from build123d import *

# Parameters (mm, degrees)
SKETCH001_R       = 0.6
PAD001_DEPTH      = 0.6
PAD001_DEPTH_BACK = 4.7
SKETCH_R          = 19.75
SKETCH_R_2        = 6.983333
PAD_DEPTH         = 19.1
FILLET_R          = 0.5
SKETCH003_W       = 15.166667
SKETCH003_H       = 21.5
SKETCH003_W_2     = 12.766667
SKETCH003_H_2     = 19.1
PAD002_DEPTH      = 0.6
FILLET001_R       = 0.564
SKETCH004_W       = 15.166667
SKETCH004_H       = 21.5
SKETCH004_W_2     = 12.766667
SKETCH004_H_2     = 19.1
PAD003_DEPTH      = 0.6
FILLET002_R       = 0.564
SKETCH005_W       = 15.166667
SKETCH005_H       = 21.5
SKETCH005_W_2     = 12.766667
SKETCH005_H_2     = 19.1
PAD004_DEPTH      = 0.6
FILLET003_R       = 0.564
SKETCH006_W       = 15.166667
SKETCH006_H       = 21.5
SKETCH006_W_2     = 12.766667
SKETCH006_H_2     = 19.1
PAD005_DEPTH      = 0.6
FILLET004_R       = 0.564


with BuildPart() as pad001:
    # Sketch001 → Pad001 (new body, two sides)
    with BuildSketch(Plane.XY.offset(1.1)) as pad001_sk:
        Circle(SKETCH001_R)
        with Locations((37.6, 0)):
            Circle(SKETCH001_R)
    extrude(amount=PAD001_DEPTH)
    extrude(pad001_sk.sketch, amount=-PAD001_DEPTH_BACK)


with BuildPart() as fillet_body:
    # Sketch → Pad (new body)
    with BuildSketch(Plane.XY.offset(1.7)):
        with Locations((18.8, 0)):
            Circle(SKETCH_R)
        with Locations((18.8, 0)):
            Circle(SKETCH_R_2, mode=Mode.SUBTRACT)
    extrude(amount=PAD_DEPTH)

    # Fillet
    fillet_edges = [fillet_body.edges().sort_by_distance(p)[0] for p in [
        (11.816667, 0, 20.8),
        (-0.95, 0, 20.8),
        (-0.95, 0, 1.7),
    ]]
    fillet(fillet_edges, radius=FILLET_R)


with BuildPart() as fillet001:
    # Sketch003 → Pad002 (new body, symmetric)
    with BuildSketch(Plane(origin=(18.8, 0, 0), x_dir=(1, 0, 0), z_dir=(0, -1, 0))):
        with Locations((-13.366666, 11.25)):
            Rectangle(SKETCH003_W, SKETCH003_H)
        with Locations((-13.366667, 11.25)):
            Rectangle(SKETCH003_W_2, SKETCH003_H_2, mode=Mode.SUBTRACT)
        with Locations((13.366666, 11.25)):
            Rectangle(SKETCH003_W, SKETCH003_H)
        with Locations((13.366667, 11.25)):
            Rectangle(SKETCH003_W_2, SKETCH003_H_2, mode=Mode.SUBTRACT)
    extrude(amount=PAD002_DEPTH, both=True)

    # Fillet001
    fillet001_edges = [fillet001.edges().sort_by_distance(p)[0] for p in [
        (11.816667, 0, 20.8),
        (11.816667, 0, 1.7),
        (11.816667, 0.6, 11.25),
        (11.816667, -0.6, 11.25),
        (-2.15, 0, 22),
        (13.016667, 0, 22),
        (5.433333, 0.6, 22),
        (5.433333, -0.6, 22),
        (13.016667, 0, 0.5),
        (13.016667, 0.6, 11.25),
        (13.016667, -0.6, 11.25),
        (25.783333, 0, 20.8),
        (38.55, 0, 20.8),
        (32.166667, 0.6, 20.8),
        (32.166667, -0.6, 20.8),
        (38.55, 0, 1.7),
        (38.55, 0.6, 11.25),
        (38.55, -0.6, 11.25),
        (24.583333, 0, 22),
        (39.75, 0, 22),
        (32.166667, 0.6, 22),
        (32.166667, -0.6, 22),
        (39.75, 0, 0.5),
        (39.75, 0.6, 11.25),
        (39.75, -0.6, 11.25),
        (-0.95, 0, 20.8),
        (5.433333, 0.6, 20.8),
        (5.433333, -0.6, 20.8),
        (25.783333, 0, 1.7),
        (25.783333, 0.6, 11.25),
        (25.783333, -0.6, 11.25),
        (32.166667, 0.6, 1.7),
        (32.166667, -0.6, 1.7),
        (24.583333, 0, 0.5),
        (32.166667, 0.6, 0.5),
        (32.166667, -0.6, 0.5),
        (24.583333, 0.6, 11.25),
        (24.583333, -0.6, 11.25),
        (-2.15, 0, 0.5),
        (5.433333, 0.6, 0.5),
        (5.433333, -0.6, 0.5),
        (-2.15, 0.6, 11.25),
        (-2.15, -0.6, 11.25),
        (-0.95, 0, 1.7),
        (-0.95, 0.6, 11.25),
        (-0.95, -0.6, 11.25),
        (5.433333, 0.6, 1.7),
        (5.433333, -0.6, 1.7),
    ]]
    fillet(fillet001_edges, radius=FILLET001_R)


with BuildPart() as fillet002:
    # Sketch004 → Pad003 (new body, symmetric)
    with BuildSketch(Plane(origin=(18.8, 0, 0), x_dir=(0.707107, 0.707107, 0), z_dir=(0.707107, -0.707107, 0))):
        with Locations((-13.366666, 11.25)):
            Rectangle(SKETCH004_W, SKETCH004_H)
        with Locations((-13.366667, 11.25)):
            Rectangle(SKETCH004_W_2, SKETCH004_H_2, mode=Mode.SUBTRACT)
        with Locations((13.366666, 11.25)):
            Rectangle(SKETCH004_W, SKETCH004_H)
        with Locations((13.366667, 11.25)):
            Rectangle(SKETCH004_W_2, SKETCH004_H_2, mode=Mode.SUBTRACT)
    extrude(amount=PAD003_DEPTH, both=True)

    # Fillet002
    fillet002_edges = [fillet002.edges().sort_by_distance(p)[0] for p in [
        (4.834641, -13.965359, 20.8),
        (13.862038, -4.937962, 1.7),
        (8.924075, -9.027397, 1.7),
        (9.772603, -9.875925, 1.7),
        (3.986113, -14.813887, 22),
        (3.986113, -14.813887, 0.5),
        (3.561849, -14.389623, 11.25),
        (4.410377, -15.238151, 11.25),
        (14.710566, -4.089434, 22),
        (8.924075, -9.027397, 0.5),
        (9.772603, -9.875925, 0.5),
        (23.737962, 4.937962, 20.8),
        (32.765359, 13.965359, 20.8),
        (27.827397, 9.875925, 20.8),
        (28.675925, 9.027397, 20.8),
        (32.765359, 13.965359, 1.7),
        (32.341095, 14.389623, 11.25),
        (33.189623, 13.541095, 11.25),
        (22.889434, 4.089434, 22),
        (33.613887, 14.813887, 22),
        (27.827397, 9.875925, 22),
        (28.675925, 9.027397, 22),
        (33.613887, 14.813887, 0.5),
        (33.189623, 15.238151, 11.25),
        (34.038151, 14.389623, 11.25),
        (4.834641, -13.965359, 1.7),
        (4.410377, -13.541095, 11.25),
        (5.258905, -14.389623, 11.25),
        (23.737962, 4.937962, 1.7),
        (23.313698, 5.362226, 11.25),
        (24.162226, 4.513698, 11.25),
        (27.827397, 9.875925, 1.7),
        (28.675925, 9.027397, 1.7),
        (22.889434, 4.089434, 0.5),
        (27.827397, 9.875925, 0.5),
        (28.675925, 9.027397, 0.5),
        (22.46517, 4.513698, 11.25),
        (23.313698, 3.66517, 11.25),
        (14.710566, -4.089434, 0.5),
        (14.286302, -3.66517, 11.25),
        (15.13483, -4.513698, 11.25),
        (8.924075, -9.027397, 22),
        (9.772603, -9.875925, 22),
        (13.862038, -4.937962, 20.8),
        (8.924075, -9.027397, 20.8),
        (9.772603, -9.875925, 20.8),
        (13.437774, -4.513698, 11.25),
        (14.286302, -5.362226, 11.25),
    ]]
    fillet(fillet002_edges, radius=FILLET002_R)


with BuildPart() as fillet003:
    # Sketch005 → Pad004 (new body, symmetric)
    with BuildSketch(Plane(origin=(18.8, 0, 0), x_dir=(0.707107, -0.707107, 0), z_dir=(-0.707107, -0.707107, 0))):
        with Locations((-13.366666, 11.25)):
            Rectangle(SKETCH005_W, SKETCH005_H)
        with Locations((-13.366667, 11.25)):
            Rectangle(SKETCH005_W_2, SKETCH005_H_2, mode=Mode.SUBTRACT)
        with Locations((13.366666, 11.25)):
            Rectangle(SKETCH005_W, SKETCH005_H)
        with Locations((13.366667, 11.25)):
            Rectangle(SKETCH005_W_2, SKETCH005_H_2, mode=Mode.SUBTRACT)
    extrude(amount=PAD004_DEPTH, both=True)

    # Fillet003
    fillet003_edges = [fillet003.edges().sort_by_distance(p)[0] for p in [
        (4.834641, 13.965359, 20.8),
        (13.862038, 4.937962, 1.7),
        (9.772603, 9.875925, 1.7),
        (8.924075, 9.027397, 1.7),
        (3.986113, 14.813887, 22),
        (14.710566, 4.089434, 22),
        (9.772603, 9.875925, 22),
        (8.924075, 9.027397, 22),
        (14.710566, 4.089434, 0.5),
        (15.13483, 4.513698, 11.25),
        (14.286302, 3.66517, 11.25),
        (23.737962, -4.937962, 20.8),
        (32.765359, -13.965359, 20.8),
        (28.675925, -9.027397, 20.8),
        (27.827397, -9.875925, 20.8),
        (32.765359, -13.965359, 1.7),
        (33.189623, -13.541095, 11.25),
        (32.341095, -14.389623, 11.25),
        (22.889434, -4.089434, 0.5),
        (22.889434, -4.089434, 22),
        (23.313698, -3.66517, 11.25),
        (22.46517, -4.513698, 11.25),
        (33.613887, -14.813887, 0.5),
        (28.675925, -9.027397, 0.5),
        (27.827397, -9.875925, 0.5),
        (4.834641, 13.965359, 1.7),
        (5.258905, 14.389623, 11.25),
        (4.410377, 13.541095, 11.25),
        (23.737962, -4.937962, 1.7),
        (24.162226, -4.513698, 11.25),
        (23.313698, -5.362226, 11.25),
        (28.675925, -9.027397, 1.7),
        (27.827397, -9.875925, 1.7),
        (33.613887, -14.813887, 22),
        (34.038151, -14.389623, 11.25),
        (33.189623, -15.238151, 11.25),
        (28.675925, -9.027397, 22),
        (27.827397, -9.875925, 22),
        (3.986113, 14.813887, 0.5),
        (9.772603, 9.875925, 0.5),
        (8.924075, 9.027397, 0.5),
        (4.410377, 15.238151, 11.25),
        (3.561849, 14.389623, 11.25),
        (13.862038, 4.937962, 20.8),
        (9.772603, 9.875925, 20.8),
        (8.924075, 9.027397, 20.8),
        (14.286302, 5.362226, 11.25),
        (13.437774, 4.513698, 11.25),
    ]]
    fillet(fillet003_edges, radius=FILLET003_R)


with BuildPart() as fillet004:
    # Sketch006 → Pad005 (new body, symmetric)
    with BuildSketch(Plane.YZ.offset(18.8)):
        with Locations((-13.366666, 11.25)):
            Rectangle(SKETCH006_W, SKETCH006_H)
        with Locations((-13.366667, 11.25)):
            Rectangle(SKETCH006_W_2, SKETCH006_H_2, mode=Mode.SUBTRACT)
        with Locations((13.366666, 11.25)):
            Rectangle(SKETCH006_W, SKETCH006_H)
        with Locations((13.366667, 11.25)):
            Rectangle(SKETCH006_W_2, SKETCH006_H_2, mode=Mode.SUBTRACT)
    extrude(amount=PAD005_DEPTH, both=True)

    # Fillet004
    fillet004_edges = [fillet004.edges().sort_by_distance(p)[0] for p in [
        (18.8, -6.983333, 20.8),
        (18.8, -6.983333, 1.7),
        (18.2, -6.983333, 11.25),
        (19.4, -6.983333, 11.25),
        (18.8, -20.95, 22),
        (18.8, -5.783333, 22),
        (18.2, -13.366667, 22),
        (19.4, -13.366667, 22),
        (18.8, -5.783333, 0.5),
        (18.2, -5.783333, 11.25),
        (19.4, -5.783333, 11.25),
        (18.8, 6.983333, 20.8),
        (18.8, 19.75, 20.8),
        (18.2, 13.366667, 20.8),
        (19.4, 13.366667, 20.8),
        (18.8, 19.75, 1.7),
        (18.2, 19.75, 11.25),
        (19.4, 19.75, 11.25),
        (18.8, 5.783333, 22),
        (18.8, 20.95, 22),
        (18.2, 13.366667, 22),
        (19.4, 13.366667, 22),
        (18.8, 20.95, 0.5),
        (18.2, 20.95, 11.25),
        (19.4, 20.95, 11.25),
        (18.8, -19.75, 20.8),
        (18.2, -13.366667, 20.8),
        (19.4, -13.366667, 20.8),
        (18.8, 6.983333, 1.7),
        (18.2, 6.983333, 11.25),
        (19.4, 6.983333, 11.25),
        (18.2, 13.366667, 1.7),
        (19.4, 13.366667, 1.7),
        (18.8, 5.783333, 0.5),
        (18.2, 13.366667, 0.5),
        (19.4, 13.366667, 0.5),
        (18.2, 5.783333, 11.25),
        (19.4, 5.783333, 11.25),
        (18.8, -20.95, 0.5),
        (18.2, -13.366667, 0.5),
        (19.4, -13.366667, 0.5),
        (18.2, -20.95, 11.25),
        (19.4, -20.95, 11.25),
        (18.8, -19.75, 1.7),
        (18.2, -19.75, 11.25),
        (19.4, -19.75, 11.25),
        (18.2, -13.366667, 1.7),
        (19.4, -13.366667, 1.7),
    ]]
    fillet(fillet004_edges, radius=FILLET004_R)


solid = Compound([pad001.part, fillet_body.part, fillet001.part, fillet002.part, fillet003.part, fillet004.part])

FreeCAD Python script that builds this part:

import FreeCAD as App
import Part
import Sketcher

V = App.Vector


def edges_at(feature, points):
    """Names of the edges that pass closest to the given points."""
    edges = feature.Shape.Edges
    near = lambda p: min(range(len(edges)), key=lambda i: edges[i].distToShape(Part.Vertex(*p))[0])
    return sorted({f"Edge{near(p) + 1}" for p in points})


def add_polygon(sketch, points):
    """Adds a closed chain of lines whose ends are joined by coincident constraints."""
    first, n = sketch.GeometryCount, len(points)
    for a, b in zip(points, points[1:] + points[:1]):
        sketch.addGeometry(Part.LineSegment(App.Vector(*a, 0), App.Vector(*b, 0)), False)
    for i in range(n):
        sketch.addConstraint(Sketcher.Constraint("Coincident", first + i, 2, first + (i + 1) % n, 1))

doc = App.newDocument("Part")
body = doc.addObject("PartDesign::Body", "Body")
body.AllowCompound = True

sketch1 = body.newObject("Sketcher::SketchObject", "Sketch")
sketch1.AttachmentSupport = (doc.getObject("XY_Plane"), [""])
sketch1.MapMode = "FlatFace"
sketch1.AttachmentOffset = App.Placement(V(0, 0, 1.1), App.Rotation())
sketch1.addGeometry([
    Part.Circle(V(0, 0, 0), V(0, 0, 1), 0.6),
    Part.Circle(V(37.6, 0, 0), V(0, 0, 1), 0.6),
], False)
sketch1.addConstraint([
    Sketcher.Constraint("Coincident", 0, 3, -1, 1),
    Sketcher.Constraint("Equal", 0, 1),
    Sketcher.Constraint("PointOnObject", 1, 3, -1),
    Sketcher.Constraint("Diameter", 0, 1.2),
    Sketcher.Constraint("DistanceX", -1, 1, 1, 3, 37.6),
])
pad1 = body.newObject("PartDesign::Pad", "Pad")
pad1.Profile = sketch1
pad1.Type = "TwoLengths"
pad1.Length = 0.6
pad1.Length2 = 4.7
body2 = doc.addObject("PartDesign::Body", "Body001")

sketch2 = body2.newObject("Sketcher::SketchObject", "Sketch001")
sketch2.AttachmentSupport = (doc.getObject("XY_Plane001"), [""])
sketch2.MapMode = "FlatFace"
sketch2.AttachmentOffset = App.Placement(V(0, 0, 1.7), App.Rotation())
sketch2.addGeometry([
    Part.Circle(V(19, 0, 0), V(0, 0, 1), 20),
    Part.Circle(V(19, 0, 0), V(0, 0, 1), 7),
], False)
sketch2.addConstraint([
    Sketcher.Constraint("Coincident", 1, 3, 0, 3),
    Sketcher.Constraint("PointOnObject", 0, 3, -1),
    Sketcher.Constraint("Diameter", 0, 39.5),
    Sketcher.Constraint("DistanceX", -1, 1, 0, 3, 18.8),
    Sketcher.Constraint("Diameter", 1, 13.966666),
])
pad2 = body2.newObject("PartDesign::Pad", "Pad001")
pad2.Profile = sketch2
pad2.Length = 19.1
doc.recompute()

fillet = body2.newObject("PartDesign::Fillet", "Fillet")
fillet.Base = (pad2, edges_at(pad2, [(11.817, 0, 20.8), (-0.95, 0, 20.8), (-0.95, 0, 1.7)]))
fillet.Radius = 0.5
body3 = doc.addObject("PartDesign::Body", "Body002")
body3.AllowCompound = True

sketch3 = body3.newObject("Sketcher::SketchObject", "Sketch002")
sketch3.AttachmentSupport = (doc.getObject("XZ_Plane002"), [""])
sketch3.MapMode = "FlatFace"
add_polygon(sketch3, [(-2, 22), (-2, 0), (13, 0), (13, 22)])
add_polygon(sketch3, [(12, 2), (-1, 2), (-1, 21), (12, 21)])
add_polygon(sketch3, [(25, 22), (25, 0), (40, 0), (40, 22)])
add_polygon(sketch3, [(39, 2), (26, 2), (26, 21), (39, 21)])
sketch3.addConstraint([
    Sketcher.Constraint("Vertical", 0),
    Sketcher.Constraint("Horizontal", 1),
    Sketcher.Constraint("Vertical", 2),
    Sketcher.Constraint("Horizontal", 3),
    Sketcher.Constraint("Horizontal", 4),
    Sketcher.Constraint("Vertical", 5),
    Sketcher.Constraint("Horizontal", 6),
    Sketcher.Constraint("Vertical", 7),
    Sketcher.Constraint("Vertical", 8),
    Sketcher.Constraint("Horizontal", 9),
    Sketcher.Constraint("Vertical", 10),
    Sketcher.Constraint("Horizontal", 11),
    Sketcher.Constraint("Horizontal", 12),
    Sketcher.Constraint("Vertical", 13),
    Sketcher.Constraint("Horizontal", 14),
    Sketcher.Constraint("Vertical", 15),
    Sketcher.Constraint("Horizontal", 1, 2, 8, 2),
    Sketcher.Constraint("Horizontal", 3, 2, 10, 2),
    Sketcher.Constraint("Horizontal", 7, 2, 12, 2),
    Sketcher.Constraint("Horizontal", 6, 2, 13, 2),
    Sketcher.Constraint("Equal", 3, 9),
    Sketcher.Constraint("Equal", 6, 12),
    Sketcher.Constraint("DistanceY", 0, 2, 0, 1, 21.5),
    Sketcher.Constraint("DistanceY", 5, 1, 5, 2, 19.1),
    Sketcher.Constraint("DistanceY", -1, 1, 2, 2, 22.0),
    Sketcher.Constraint("DistanceY", -1, 1, 4, 2, 1.7),
    Sketcher.Constraint("DistanceX", 0, 2, 4, 2, 1.199999),
    Sketcher.Constraint("DistanceX", 6, 2, 2, 2, 1.200001),
    Sketcher.Constraint("DistanceX", 8, 2, 12, 2, 1.200001),
    Sketcher.Constraint("DistanceX", 0, 2, -1, 1, 2.149999),
    Sketcher.Constraint("DistanceX", -1, 1, 9, 2, 39.75),
    Sketcher.Constraint("DistanceX", 1, 1, 1, 2, 15.166667),
])
pad3 = body3.newObject("PartDesign::Pad", "Pad002")
pad3.Profile = sketch3
pad3.Length = 1.2
pad3.Midplane = True
doc.recompute()

fillet2 = body3.newObject("PartDesign::Fillet", "Fillet001")
fillet2.Base = (pad3, ["Edge1"])
fillet2.UseAllEdges = True
fillet2.Radius = 0.564
body4 = doc.addObject("PartDesign::Body", "Body003")
body4.AllowCompound = True

sketch4 = body4.newObject("Sketcher::SketchObject", "Sketch003")
sketch4.Placement = App.Placement(V(18.8, 0, 0), App.Rotation(V(0.707106781, 0.707106781, 0), V(0, 0, 0.999999999), V(0.707106781, -0.707106781, 0), "ZXY"))
add_polygon(sketch4, [(-21, 22), (-21, 0), (-6, 0), (-6, 22)])
add_polygon(sketch4, [(-7, 2), (-20, 2), (-20, 21), (-7, 21)])
add_polygon(sketch4, [(6, 22), (6, 0), (21, 0), (21, 22)])
add_polygon(sketch4, [(20, 2), (7, 2), (7, 21), (20, 21)])
sketch4.addConstraint([
    Sketcher.Constraint("Vertical", 0),
    Sketcher.Constraint("Horizontal", 1),
    Sketcher.Constraint("Vertical", 2),
    Sketcher.Constraint("Horizontal", 3),
    Sketcher.Constraint("Horizontal", 4),
    Sketcher.Constraint("Vertical", 5),
    Sketcher.Constraint("Horizontal", 6),
    Sketcher.Constraint("Vertical", 7),
    Sketcher.Constraint("Vertical", 8),
    Sketcher.Constraint("Horizontal", 9),
    Sketcher.Constraint("Vertical", 10),
    Sketcher.Constraint("Horizontal", 11),
    Sketcher.Constraint("Horizontal", 12),
    Sketcher.Constraint("Vertical", 13),
    Sketcher.Constraint("Horizontal", 14),
    Sketcher.Constraint("Vertical", 15),
    Sketcher.Constraint("Symmetric", 1, 2, 8, 2, -2),
    Sketcher.Constraint("Symmetric", 3, 2, 10, 2, -2),
    Sketcher.Constraint("Symmetric", 7, 2, 12, 2, -2),
    Sketcher.Constraint("Symmetric", 5, 2, 14, 2, -2),
    Sketcher.Constraint("DistanceY", 0, 2, 0, 1, 21.5),
    Sketcher.Constraint("DistanceY", 5, 1, 5, 2, 19.1),
    Sketcher.Constraint("DistanceY", -1, 1, 2, 2, 22.0),
    Sketcher.Constraint("DistanceY", -1, 1, 4, 2, 1.7),
    Sketcher.Constraint("DistanceX", 0, 2, 4, 2, 1.199999),
    Sketcher.Constraint("DistanceX", 6, 2, 2, 2, 1.200001),
    Sketcher.Constraint("DistanceX", 0, 2, -1, 1, 20.949999),
    Sketcher.Constraint("DistanceX", 1, 1, 1, 2, 15.166667),
])
pad4 = body4.newObject("PartDesign::Pad", "Pad003")
pad4.Profile = sketch4
pad4.Length = 1.2
pad4.Midplane = True
doc.recompute()

fillet3 = body4.newObject("PartDesign::Fillet", "Fillet002")
fillet3.Base = (pad4, ["Edge1"])
fillet3.UseAllEdges = True
fillet3.Radius = 0.564
body5 = doc.addObject("PartDesign::Body", "Body004")
body5.AllowCompound = True

sketch5 = body5.newObject("Sketcher::SketchObject", "Sketch004")
sketch5.Placement = App.Placement(V(18.8, 0, 0), App.Rotation(V(0.707106781, -0.707106781, 0), V(0, 0, 0.999999999), V(-0.707106781, -0.707106781, 0), "ZXY"))
add_polygon(sketch5, [(-21, 22), (-21, 0), (-6, 0), (-6, 22)])
add_polygon(sketch5, [(-7, 2), (-20, 2), (-20, 21), (-7, 21)])
add_polygon(sketch5, [(6, 22), (6, 0), (21, 0), (21, 22)])
add_polygon(sketch5, [(20, 2), (7, 2), (7, 21), (20, 21)])
sketch5.addConstraint([
    Sketcher.Constraint("Vertical", 0),
    Sketcher.Constraint("Horizontal", 1),
    Sketcher.Constraint("Vertical", 2),
    Sketcher.Constraint("Horizontal", 3),
    Sketcher.Constraint("Horizontal", 4),
    Sketcher.Constraint("Vertical", 5),
    Sketcher.Constraint("Horizontal", 6),
    Sketcher.Constraint("Vertical", 7),
    Sketcher.Constraint("Vertical", 8),
    Sketcher.Constraint("Horizontal", 9),
    Sketcher.Constraint("Vertical", 10),
    Sketcher.Constraint("Horizontal", 11),
    Sketcher.Constraint("Horizontal", 12),
    Sketcher.Constraint("Vertical", 13),
    Sketcher.Constraint("Horizontal", 14),
    Sketcher.Constraint("Vertical", 15),
    Sketcher.Constraint("Symmetric", 1, 2, 8, 2, -2),
    Sketcher.Constraint("Symmetric", 3, 2, 10, 2, -2),
    Sketcher.Constraint("Symmetric", 7, 2, 12, 2, -2),
    Sketcher.Constraint("Symmetric", 5, 2, 14, 2, -2),
    Sketcher.Constraint("DistanceY", 0, 2, 0, 1, 21.5),
    Sketcher.Constraint("DistanceY", 5, 1, 5, 2, 19.1),
    Sketcher.Constraint("DistanceY", -1, 1, 2, 2, 22.0),
    Sketcher.Constraint("DistanceY", -1, 1, 4, 2, 1.7),
    Sketcher.Constraint("DistanceX", 0, 2, 4, 2, 1.199999),
    Sketcher.Constraint("DistanceX", 6, 2, 2, 2, 1.200001),
    Sketcher.Constraint("DistanceX", 0, 2, -1, 1, 20.949999),
    Sketcher.Constraint("DistanceX", 1, 1, 1, 2, 15.166667),
])
pad5 = body5.newObject("PartDesign::Pad", "Pad004")
pad5.Profile = sketch5
pad5.Length = 1.2
pad5.Midplane = True
doc.recompute()

fillet4 = body5.newObject("PartDesign::Fillet", "Fillet003")
fillet4.Base = (pad5, ["Edge1"])
fillet4.UseAllEdges = True
fillet4.Radius = 0.564
body6 = doc.addObject("PartDesign::Body", "Body005")
body6.AllowCompound = True

sketch6 = body6.newObject("Sketcher::SketchObject", "Sketch005")
sketch6.AttachmentSupport = (doc.getObject("YZ_Plane005"), [""])
sketch6.MapMode = "FlatFace"
sketch6.AttachmentOffset = App.Placement(V(0, 0, 18.8), App.Rotation())
add_polygon(sketch6, [(-21, 22), (-21, 0), (-6, 0), (-6, 22)])
add_polygon(sketch6, [(-7, 2), (-20, 2), (-20, 21), (-7, 21)])
add_polygon(sketch6, [(6, 22), (6, 0), (21, 0), (21, 22)])
add_polygon(sketch6, [(20, 2), (7, 2), (7, 21), (20, 21)])
sketch6.addConstraint([
    Sketcher.Constraint("Vertical", 0),
    Sketcher.Constraint("Horizontal", 1),
    Sketcher.Constraint("Vertical", 2),
    Sketcher.Constraint("Horizontal", 3),
    Sketcher.Constraint("Horizontal", 4),
    Sketcher.Constraint("Vertical", 5),
    Sketcher.Constraint("Horizontal", 6),
    Sketcher.Constraint("Vertical", 7),
    Sketcher.Constraint("Vertical", 8),
    Sketcher.Constraint("Horizontal", 9),
    Sketcher.Constraint("Vertical", 10),
    Sketcher.Constraint("Horizontal", 11),
    Sketcher.Constraint("Horizontal", 12),
    Sketcher.Constraint("Vertical", 13),
    Sketcher.Constraint("Horizontal", 14),
    Sketcher.Constraint("Vertical", 15),
    Sketcher.Constraint("Symmetric", 1, 2, 8, 2, -2),
    Sketcher.Constraint("Symmetric", 3, 2, 10, 2, -2),
    Sketcher.Constraint("Symmetric", 7, 2, 12, 2, -2),
    Sketcher.Constraint("Symmetric", 5, 2, 14, 2, -2),
    Sketcher.Constraint("DistanceY", 0, 2, 0, 1, 21.5),
    Sketcher.Constraint("DistanceY", 5, 1, 5, 2, 19.1),
    Sketcher.Constraint("DistanceY", -1, 1, 2, 2, 22.0),
    Sketcher.Constraint("DistanceY", -1, 1, 4, 2, 1.7),
    Sketcher.Constraint("DistanceX", 0, 2, 4, 2, 1.199999),
    Sketcher.Constraint("DistanceX", 6, 2, 2, 2, 1.200001),
    Sketcher.Constraint("DistanceX", 0, 2, -1, 1, 20.95),
    Sketcher.Constraint("DistanceX", 1, 1, 1, 2, 15.166667),
])
pad6 = body6.newObject("PartDesign::Pad", "Pad005")
pad6.Profile = sketch6
pad6.Length = 1.2
pad6.Midplane = True
doc.recompute()

fillet5 = body6.newObject("PartDesign::Fillet", "Fillet004")
fillet5.Base = (pad6, ["Edge1"])
fillet5.UseAllEdges = True
fillet5.Radius = 0.564

doc.recompute()
